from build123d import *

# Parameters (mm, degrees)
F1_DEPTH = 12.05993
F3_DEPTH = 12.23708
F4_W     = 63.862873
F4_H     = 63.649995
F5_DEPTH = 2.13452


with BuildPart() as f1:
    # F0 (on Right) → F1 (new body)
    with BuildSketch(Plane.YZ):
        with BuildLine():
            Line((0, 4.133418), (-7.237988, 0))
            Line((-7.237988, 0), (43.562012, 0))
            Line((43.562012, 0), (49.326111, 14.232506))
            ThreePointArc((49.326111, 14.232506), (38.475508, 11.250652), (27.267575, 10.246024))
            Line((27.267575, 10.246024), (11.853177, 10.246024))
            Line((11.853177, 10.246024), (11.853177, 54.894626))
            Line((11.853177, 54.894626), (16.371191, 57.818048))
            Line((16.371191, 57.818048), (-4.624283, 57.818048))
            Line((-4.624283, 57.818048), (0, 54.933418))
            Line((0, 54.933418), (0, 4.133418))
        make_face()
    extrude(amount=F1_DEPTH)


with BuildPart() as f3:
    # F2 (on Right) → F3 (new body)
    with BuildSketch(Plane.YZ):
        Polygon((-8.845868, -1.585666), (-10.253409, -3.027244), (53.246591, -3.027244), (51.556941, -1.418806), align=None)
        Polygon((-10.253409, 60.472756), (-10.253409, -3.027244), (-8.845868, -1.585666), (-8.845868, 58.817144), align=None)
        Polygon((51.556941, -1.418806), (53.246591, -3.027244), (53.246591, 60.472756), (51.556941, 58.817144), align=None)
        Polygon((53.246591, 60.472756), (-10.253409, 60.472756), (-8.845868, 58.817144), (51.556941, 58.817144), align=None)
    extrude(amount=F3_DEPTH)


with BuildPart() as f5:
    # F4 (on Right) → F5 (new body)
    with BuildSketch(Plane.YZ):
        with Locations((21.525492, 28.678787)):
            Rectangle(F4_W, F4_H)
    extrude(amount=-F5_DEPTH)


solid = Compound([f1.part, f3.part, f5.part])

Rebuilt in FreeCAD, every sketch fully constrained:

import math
import FreeCAD as App
import Part
import Sketcher

V = App.Vector
Q = App.Units.Quantity

doc = App.newDocument("Part")
body = doc.addObject("PartDesign::Body", "Body")

# Sketch on YZ plane
sketch1 = doc.addObject("Sketcher::SketchObject", "Sketch")
body.addObject(sketch1)
sketch1.AttachmentSupport = (doc.YZ_Plane, [""])
sketch1.MapMode = "FlatFace"
sketch1.addGeometry(Part.LineSegment(V(0, 4.133418, 0), V(-7.237988, 0, 0)), False)
sketch1.addGeometry(Part.LineSegment(V(-7.237988, 0, 0), V(43.562012, 0, 0)), False)
sketch1.addGeometry(Part.LineSegment(V(43.562012, 0, 0), V(49.326111, 14.232506, 0)), False)
sketch1.addGeometry(Part.ArcOfCircle(Part.Circle(V(27.267573, 73.267896, 0), V(0, 0, 1), 63.021872), math.radians(-89.999999), math.radians(-69.511829)), False)
sketch1.addGeometry(Part.LineSegment(V(27.267575, 10.246024, 0), V(11.853177, 10.246024, 0)), False)
sketch1.addGeometry(Part.LineSegment(V(11.853177, 10.246024, 0), V(11.853177, 54.894626, 0)), False)
sketch1.addGeometry(Part.LineSegment(V(11.853177, 54.894626, 0), V(16.371191, 57.818048, 0)), False)
sketch1.addGeometry(Part.LineSegment(V(16.371191, 57.818048, 0), V(-4.624283, 57.818048, 0)), False)
sketch1.addGeometry(Part.LineSegment(V(-4.624283, 57.818048, 0), V(0, 54.933418, 0)), False)
sketch1.addGeometry(Part.LineSegment(V(0, 54.933418, 0), V(0, 4.133418, 0)), False)
sketch1.addConstraint(Sketcher.Constraint("Coincident", 0, 2, 1, 1))
sketch1.addConstraint(Sketcher.Constraint("Coincident", 1, 2, 2, 1))
sketch1.addConstraint(Sketcher.Constraint("Coincident", 2, 2, 3, 2))
sketch1.addConstraint(Sketcher.Constraint("Tangent", 3, 1, 4, 1))
sketch1.addConstraint(Sketcher.Constraint("Coincident", 4, 2, 5, 1))
sketch1.addConstraint(Sketcher.Constraint("Coincident", 5, 2, 6, 1))
sketch1.addConstraint(Sketcher.Constraint("Coincident", 6, 2, 7, 1))
sketch1.addConstraint(Sketcher.Constraint("Coincident", 7, 2, 8, 1))
sketch1.addConstraint(Sketcher.Constraint("Coincident", 8, 2, 9, 1))
sketch1.addConstraint(Sketcher.Constraint("Coincident", 9, 2, 0, 1))
sketch1.addConstraint(Sketcher.Constraint("Horizontal", 1))
sketch1.addConstraint(Sketcher.Constraint("Horizontal", 4))
sketch1.addConstraint(Sketcher.Constraint("Vertical", 5))
sketch1.addConstraint(Sketcher.Constraint("Horizontal", 7))
sketch1.addConstraint(Sketcher.Constraint("Vertical", 9))
sketch1.addConstraint(Sketcher.Constraint("PointOnObject", 0, 2, -1))
sketch1.addConstraint(Sketcher.Constraint("PointOnObject", 8, 2, -2))
sketch1.addConstraint(Sketcher.Constraint("Equal", 1, 9))
sketch1.addConstraint(Sketcher.Constraint("DistanceX", 1, 1, 1, 2, Q("2 in")))
sketch1.addConstraint(Sketcher.Constraint("Radius", 3, Q("63.021872 mm")))
sketch1.addConstraint(Sketcher.Constraint("DistanceX", 1, 2, 2, 2, Q("5.764099 mm")))
sketch1.addConstraint(Sketcher.Constraint("DistanceY", 3, 1, 5, 2, Q("44.648602 mm")))
sketch1.addConstraint(Sketcher.Constraint("DistanceX", 4, 2, 4, 1, Q("15.414398 mm")))
sketch1.addConstraint(Sketcher.Constraint("DistanceX", 7, 2, 7, 1, Q("20.995474 mm")))
sketch1.addConstraint(Sketcher.Constraint("DistanceX", -1, 1, 2, 2, Q("49.326111 mm")))
sketch1.addConstraint(Sketcher.Constraint("DistanceX", -1, 1, 6, 2, Q("16.371191 mm")))
sketch1.addConstraint(Sketcher.Constraint("DistanceY", -1, 1, 8, 2, Q("54.933418 mm")))
sketch1.addConstraint(Sketcher.Constraint("DistanceX", 0, 2, 3, 3, Q("34.505561 mm")))
sketch1.addConstraint(Sketcher.Constraint("DistanceY", 5, 2, 6, 2, Q("2.923422 mm")))
sketch1.addConstraint(Sketcher.Constraint("DistanceY", 8, 2, 7, 2, Q("2.88463 mm")))
pad1 = doc.addObject("PartDesign::Pad", "Pad")
body.addObject(pad1)
pad1.Profile = sketch1
pad1.Length = 12.05993
body2 = doc.addObject("PartDesign::Body", "Body001")

# Sketch on YZ plane
sketch2 = doc.addObject("Sketcher::SketchObject", "Sketch001")
body2.addObject(sketch2)
sketch2.AttachmentSupport = (doc.getObject("YZ_Plane001"), [""])
sketch2.MapMode = "FlatFace"
sketch2.addGeometry(Part.LineSegment(V(-10.253409, -3.027244, 0), V(53.246591, -3.027244, 0)), False)
sketch2.addGeometry(Part.LineSegment(V(53.246591, -3.027244, 0), V(53.246591, 60.472756, 0)), False)
sketch2.addGeometry(Part.LineSegment(V(53.246591, 60.472756, 0), V(-10.253409, 60.472756, 0)), False)
sketch2.addGeometry(Part.LineSegment(V(-10.253409, 60.472756, 0), V(-10.253409, -3.027244, 0)), False)
sketch2.addGeometry(Part.LineSegment(V(51.556941, 58.817144, 0), V(51.556941, -1.418806, 0)), False)
sketch2.addGeometry(Part.LineSegment(V(51.556941, -1.418806, 0), V(-8.845868, -1.585666, 0)), False)
sketch2.addGeometry(Part.LineSegment(V(-8.845868, -1.585666, 0), V(-8.845868, 58.817144, 0)), False)
sketch2.addGeometry(Part.LineSegment(V(-8.845868, 58.817144, 0), V(51.556941, 58.817144, 0)), False)
sketch2.addConstraint(Sketcher.Constraint("Coincident", 0, 2, 1, 1))
sketch2.addConstraint(Sketcher.Constraint("Coincident", 1, 2, 2, 1))
sketch2.addConstraint(Sketcher.Constraint("Coincident", 2, 2, 3, 1))
sketch2.addConstraint(Sketcher.Constraint("Coincident", 3, 2, 0, 1))
sketch2.addConstraint(Sketcher.Constraint("Coincident", 4, 2, 5, 1))
sketch2.addConstraint(Sketcher.Constraint("Coincident", 5, 2, 6, 1))
sketch2.addConstraint(Sketcher.Constraint("Coincident", 6, 2, 7, 1))
sketch2.addConstraint(Sketcher.Constraint("Coincident", 7, 2, 4, 1))
sketch2.addConstraint(Sketcher.Constraint("Horizontal", 0))
sketch2.addConstraint(Sketcher.Constraint("Vertical", 1))
sketch2.addConstraint(Sketcher.Constraint("Horizontal", 2))
sketch2.addConstraint(Sketcher.Constraint("Vertical", 3))
sketch2.addConstraint(Sketcher.Constraint("Vertical", 4))
sketch2.addConstraint(Sketcher.Constraint("Vertical", 6))
sketch2.addConstraint(Sketcher.Constraint("Horizontal", 7))
sketch2.addConstraint(Sketcher.Constraint("Equal", 2, 1))
sketch2.addConstraint(Sketcher.Constraint("Equal", 7, 6))
sketch2.addConstraint(Sketcher.Constraint("DistanceX", 0, 1, 0, 2, Q("2.5 in")))
sketch2.addConstraint(Sketcher.Constraint("DistanceX", 7, 1, 7, 2, Q("60.402809 mm")))
sketch2.addConstraint(Sketcher.Constraint("DistanceY", 4, 2, 4, 1, Q("60.23595 mm")))
sketch2.addConstraint(Sketcher.Constraint("DistanceX", -1, 1, 0, 2, Q("53.246591 mm")))
sketch2.addConstraint(Sketcher.Constraint("DistanceX", -1, 1, 4, 2, Q("51.556941 mm")))
sketch2.addConstraint(Sketcher.Constraint("DistanceY", 4, 2, 1, 2, Q("61.891562 mm")))
sketch2.addConstraint(Sketcher.Constraint("DistanceY", 0, 2, -1, 1, Q("3.027244 mm")))
pad2 = doc.addObject("PartDesign::Pad", "Pad001")
body2.addObject(pad2)
pad2.Profile = sketch2
pad2.Length = 12.23708
body3 = doc.addObject("PartDesign::Body", "Body002")

# Sketch on YZ plane
sketch3 = doc.addObject("Sketcher::SketchObject", "Sketch002")
body3.addObject(sketch3)
sketch3.AttachmentSupport = (doc.getObject("YZ_Plane002"), [""])
sketch3.MapMode = "FlatFace"
sketch3.addGeometry(Part.LineSegment(V(-10.405945, 60.503785, 0), V(-10.405945, -3.146211, 0)), False)
sketch3.addGeometry(Part.LineSegment(V(-10.405945, -3.146211, 0), V(53.456928, -3.146211, 0)), False)
sketch3.addGeometry(Part.LineSegment(V(53.456928, -3.146211, 0), V(53.456928, 60.503785, 0)), False)
sketch3.addGeometry(Part.LineSegment(V(53.456928, 60.503785, 0), V(-10.405945, 60.503785, 0)), False)
sketch3.addConstraint(Sketcher.Constraint("Coincident", 0, 2, 1, 1))
sketch3.addConstraint(Sketcher.Constraint("Coincident", 1, 2, 2, 1))
sketch3.addConstraint(Sketcher.Constraint("Coincident", 2, 2, 3, 1))
sketch3.addConstraint(Sketcher.Constraint("Coincident", 3, 2, 0, 1))
sketch3.addConstraint(Sketcher.Constraint("Vertical", 0))
sketch3.addConstraint(Sketcher.Constraint("Horizontal", 1))
sketch3.addConstraint(Sketcher.Constraint("Vertical", 2))
sketch3.addConstraint(Sketcher.Constraint("Horizontal", 3))
sketch3.addConstraint(Sketcher.Constraint("DistanceX", 1, 1, 1, 2, Q("63.862873 mm")))
sketch3.addConstraint(Sketcher.Constraint("DistanceY", 0, 2, 0, 1, Q("63.649995 mm")))
sketch3.addConstraint(Sketcher.Constraint("DistanceY", 0, 2, -1, 1, Q("3.146211 mm")))
sketch3.addConstraint(Sketcher.Constraint("DistanceX", -1, 1, 1, 2, Q("53.456928 mm")))
pad3 = doc.addObject("PartDesign::Pad", "Pad002")
body3.addObject(pad3)
pad3.Profile = sketch3
pad3.Length = 2.13452
pad3.Reversed = True

doc.recompute()
